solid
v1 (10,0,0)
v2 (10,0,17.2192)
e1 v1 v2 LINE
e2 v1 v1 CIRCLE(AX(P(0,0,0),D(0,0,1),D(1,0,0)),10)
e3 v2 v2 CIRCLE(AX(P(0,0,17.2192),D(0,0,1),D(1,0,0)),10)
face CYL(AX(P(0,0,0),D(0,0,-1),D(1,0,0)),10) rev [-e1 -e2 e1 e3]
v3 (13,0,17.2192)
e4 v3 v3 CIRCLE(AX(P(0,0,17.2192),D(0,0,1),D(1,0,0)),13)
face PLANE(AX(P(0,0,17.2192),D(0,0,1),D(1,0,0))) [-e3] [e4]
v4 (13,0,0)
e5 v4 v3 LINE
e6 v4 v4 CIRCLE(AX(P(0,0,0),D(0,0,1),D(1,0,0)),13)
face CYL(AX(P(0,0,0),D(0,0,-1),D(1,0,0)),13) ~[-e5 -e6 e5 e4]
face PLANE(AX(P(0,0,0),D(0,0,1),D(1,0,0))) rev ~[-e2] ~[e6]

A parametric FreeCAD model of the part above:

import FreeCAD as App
import Part
import Sketcher

V = App.Vector
Q = App.Units.Quantity

doc = App.newDocument("Part")
body = doc.addObject("PartDesign::Body", "Body")

# Sketch on XY plane
sketch1 = body.newObject("Sketcher::SketchObject", "Sketch")
sketch1.AttachmentSupport = (doc.getObject("XY_Plane"), [""])
sketch1.MapMode = "FlatFace"
sketch1.addGeometry([
    Part.Circle(V(0, 0, 0), V(0, 0, 1), 13),
    Part.Circle(V(0, 0, 0), V(0, 0, 1), 10),
], False)
sketch1.addConstraint([
    Sketcher.Constraint("Coincident", 0, 3, -1, 1),
    Sketcher.Constraint("Coincident", 1, 3, -1, 1),
    Sketcher.Constraint("Diameter", 0, Q("26 mm")),
    Sketcher.Constraint("Diameter", 1, Q("20 mm")),
])
pad1 = body.newObject("PartDesign::Pad", "Pad")
pad1.Profile = sketch1
pad1.Length = 17.2192

doc.recompute()
